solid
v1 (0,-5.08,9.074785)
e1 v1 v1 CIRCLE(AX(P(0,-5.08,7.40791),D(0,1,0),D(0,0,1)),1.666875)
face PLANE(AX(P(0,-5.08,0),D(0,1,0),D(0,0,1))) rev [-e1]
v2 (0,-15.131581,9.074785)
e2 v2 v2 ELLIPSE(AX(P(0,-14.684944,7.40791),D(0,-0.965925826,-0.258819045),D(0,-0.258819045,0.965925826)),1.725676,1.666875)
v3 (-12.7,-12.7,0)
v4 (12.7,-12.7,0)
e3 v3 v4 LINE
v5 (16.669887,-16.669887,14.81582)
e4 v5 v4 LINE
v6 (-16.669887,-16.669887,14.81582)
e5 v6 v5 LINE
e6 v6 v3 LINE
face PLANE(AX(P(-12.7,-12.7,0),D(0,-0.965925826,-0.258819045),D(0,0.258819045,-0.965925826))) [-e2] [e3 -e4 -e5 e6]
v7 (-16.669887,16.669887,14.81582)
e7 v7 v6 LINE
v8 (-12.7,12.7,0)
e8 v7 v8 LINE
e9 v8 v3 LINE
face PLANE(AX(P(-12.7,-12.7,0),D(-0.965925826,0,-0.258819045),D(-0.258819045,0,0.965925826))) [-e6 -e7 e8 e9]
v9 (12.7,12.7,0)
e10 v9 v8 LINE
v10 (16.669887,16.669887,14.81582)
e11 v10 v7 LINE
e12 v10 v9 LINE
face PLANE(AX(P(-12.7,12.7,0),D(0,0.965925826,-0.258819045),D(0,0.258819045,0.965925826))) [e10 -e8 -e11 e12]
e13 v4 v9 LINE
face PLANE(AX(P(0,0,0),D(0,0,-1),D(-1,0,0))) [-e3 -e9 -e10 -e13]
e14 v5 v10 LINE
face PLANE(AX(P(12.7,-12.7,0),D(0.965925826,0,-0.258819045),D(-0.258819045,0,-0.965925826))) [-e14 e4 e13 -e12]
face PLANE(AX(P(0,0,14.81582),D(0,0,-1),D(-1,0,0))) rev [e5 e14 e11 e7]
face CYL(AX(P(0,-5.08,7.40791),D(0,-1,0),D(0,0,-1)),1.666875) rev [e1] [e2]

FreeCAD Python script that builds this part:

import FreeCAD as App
import Part
import Sketcher

V = App.Vector
Q = App.Units.Quantity


def faces_at(feature, points):
    """Names of the faces that lie closest to the given points."""
    faces = feature.Shape.Faces
    near = lambda p: min(range(len(faces)), key=lambda i: faces[i].distToShape(Part.Vertex(*p))[0])
    return sorted({f"Face{near(p) + 1}" for p in points})


def add_polygon(sketch, points):
    """Adds a closed chain of lines whose ends are joined by coincident constraints."""
    first, n = sketch.GeometryCount, len(points)
    for a, b in zip(points, points[1:] + points[:1]):
        sketch.addGeometry(Part.LineSegment(App.Vector(*a, 0), App.Vector(*b, 0)), False)
    for i in range(n):
        sketch.addConstraint(Sketcher.Constraint("Coincident", first + i, 2, first + (i + 1) % n, 1))

doc = App.newDocument("Part")
params = doc.addObject("Spreadsheet::Sheet", "Params")
for row, (alias, value) in enumerate([
    ("sketch1_width", "1 in"),
    ("pad1_length", "0.5833 in"),
    ("draft_angle", "15 deg"),
    ("pocket1_length", "0.5 in"),
], start=1):
    params.set(f"A{row}", alias)
    params.set(f"B{row}", "=" + value)
    params.setAlias(f"B{row}", alias)

body = doc.addObject("PartDesign::Body", "Body")

# Sketch on XY plane
sketch1 = body.newObject("Sketcher::SketchObject", "Sketch")
sketch1.AttachmentSupport = (doc.getObject("XY_Plane"), [""])
sketch1.MapMode = "FlatFace"
add_polygon(sketch1, [(-13, 13), (-13, -13), (13, -13), (13, 13)])  # lines 0-3
sketch1.addConstraint(Sketcher.Constraint("Vertical", 0))
sketch1.addConstraint(Sketcher.Constraint("Horizontal", 1))
sketch1.addConstraint(Sketcher.Constraint("Vertical", 2))
sketch1.addConstraint(Sketcher.Constraint("Horizontal", 3))
sketch1.addConstraint(Sketcher.Constraint("Symmetric", 0, 2, 2, 2, -1, 1))
sketch1.addConstraint(Sketcher.Constraint("Equal", 3, 0))
sketch1.addConstraint(Sketcher.Constraint("DistanceX", 1, 1, 1, 2, Q("1 in")))
sketch1.setExpression("Constraints[10]", "Params.sketch1_width")
pad1 = body.newObject("PartDesign::Pad", "Pad")
pad1.Profile = sketch1
pad1.setExpression("Length", "Params.pad1_length")
doc.recompute()

draft = body.newObject("PartDesign::Draft", "Draft")
draft.Base = (pad1, faces_at(pad1, [
    (0, -12.7, 7.408),
    (12.7, 0, 7.408),
    (0, 12.7, 7.408),
    (-12.7, 0, 7.408),
]))
draft.NeutralPlane = (doc.getObject("XY_Plane"), [""])
draft.setExpression("Angle", "Params.draft_angle")
draft.Reversed = True

# Sketch on XZ plane
sketch2 = body.newObject("Sketcher::SketchObject", "Sketch001")
sketch2.AttachmentSupport = (doc.getObject("XZ_Plane"), [""])
sketch2.MapMode = "FlatFace"
sketch2.AttachmentOffset = App.Placement(V(0, 0, 0.7 * 25.4), App.Rotation())
sketch2.addGeometry(Part.Circle(V(0, 7.4, 0), V(0, 0, 1), 1.7), False)
sketch2.addConstraint(Sketcher.Constraint("PointOnObject", 0, 3, -2))
sketch2.addConstraint(Sketcher.Constraint("Diameter", 0, Q("3.33375 mm")))
sketch2.addConstraint(Sketcher.Constraint("DistanceY", -1, 1, 0, 3, Q("7.40791 mm")))
pocket1 = body.newObject("PartDesign::Pocket", "Pocket")
pocket1.Profile = sketch2
pocket1.setExpression("Length", "Params.pocket1_length")

doc.recompute()
